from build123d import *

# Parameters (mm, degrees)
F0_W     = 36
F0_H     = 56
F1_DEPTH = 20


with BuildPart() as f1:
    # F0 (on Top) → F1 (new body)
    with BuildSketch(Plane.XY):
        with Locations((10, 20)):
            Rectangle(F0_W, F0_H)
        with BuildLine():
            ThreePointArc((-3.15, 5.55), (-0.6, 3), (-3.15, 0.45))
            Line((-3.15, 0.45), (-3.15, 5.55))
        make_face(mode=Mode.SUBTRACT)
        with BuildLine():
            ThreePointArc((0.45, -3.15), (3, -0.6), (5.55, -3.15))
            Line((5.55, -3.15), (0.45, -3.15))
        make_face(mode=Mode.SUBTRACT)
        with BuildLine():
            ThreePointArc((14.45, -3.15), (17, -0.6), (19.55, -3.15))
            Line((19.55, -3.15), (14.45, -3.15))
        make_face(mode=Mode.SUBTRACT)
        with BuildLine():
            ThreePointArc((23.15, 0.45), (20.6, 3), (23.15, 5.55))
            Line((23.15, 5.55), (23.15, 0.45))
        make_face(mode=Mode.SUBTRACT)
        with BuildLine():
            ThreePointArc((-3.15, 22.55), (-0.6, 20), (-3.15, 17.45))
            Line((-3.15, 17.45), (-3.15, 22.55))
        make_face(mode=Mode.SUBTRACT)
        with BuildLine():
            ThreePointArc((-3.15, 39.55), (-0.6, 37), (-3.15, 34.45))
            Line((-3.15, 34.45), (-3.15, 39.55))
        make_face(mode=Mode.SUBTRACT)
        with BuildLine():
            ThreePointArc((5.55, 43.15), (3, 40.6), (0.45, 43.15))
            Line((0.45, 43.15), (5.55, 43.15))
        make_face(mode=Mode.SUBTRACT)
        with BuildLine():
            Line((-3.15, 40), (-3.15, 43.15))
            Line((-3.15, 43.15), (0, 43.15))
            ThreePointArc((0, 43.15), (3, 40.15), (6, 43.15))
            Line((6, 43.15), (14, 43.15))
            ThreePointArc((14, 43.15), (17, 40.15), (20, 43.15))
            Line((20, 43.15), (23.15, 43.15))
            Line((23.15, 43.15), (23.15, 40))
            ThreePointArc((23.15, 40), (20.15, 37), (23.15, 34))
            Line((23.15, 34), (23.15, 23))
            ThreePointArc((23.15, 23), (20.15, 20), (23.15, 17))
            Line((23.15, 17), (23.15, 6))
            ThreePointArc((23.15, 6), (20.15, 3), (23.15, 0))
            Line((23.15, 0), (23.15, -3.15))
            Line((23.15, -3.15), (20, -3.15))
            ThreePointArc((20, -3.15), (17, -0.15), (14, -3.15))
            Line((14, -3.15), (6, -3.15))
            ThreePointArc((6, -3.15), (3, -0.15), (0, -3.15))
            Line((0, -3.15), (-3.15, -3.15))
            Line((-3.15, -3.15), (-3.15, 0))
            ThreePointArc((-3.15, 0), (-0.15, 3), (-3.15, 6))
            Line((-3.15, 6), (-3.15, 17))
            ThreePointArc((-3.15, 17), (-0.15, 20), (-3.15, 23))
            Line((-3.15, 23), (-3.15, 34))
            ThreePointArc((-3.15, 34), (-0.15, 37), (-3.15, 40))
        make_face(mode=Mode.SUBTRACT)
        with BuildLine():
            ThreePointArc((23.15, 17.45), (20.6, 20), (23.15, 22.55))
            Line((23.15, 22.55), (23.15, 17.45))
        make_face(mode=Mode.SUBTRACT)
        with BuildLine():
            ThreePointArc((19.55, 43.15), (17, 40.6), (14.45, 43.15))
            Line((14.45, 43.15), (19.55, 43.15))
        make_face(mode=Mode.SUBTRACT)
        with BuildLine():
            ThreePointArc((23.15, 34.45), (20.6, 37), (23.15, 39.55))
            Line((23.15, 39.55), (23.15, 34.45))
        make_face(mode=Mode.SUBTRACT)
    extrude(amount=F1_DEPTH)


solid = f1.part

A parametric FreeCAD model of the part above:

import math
import FreeCAD as App
import Part
import Sketcher

V = App.Vector


def add_polygon(sketch, points):
    """Adds a closed chain of lines whose ends are joined by coincident constraints."""
    first, n = sketch.GeometryCount, len(points)
    for a, b in zip(points, points[1:] + points[:1]):
        sketch.addGeometry(Part.LineSegment(App.Vector(*a, 0), App.Vector(*b, 0)), False)
    for i in range(n):
        sketch.addConstraint(Sketcher.Constraint("Coincident", first + i, 2, first + (i + 1) % n, 1))

doc = App.newDocument("Part")
body = doc.addObject("PartDesign::Body", "Body")

# Sketch on XY plane
sketch1 = body.newObject("Sketcher::SketchObject", "Sketch")
sketch1.AttachmentSupport = (doc.getObject("XY_Plane"), [""])
sketch1.MapMode = "FlatFace"
add_polygon(sketch1, [(-8, 48), (-8, -8), (28, -8), (28, 48)])  # lines 0-3
sketch1.addGeometry(Part.LineSegment(V(5.5, -3.1, 0), V(0.5, -3.1, 0)), False)  # 4
sketch1.addGeometry(Part.ArcOfCircle(Part.Circle(V(3, -3.1, 0), V(0, 0, 1), 2.5), math.radians(0), math.radians(180)), False)  # 5
sketch1.addGeometry(Part.LineSegment(V(-3.1, 0.5, 0), V(-3.1, 5.5, 0)), False)  # 6
sketch1.addGeometry(Part.ArcOfCircle(Part.Circle(V(-3.1, 3, 0), V(0, 0, 1), 2.5), math.radians(-90), math.radians(90)), False)  # 7
sketch1.addGeometry(Part.LineSegment(V(19.6, -3.1, 0), V(14.4, -3.1, 0)), False)  # 8
sketch1.addGeometry(Part.ArcOfCircle(Part.Circle(V(17, -3.1, 0), V(0, 0, 1), 2.5), math.radians(0), math.radians(180)), False)  # 9
sketch1.addGeometry(Part.LineSegment(V(23.1, 5.5, 0), V(23.1, 0.5, 0)), False)  # 10
sketch1.addGeometry(Part.ArcOfCircle(Part.Circle(V(23.1, 3, 0), V(0, 0, 1), 2.5), math.radians(90), math.radians(270)), False)  # 11
sketch1.addGeometry(Part.LineSegment(V(-3.1, 17.4, 0), V(-3.1, 22.6, 0)), False)  # 12
sketch1.addGeometry(Part.ArcOfCircle(Part.Circle(V(-3.1, 20, 0), V(0, 0, 1), 2.5), math.radians(-90), math.radians(90)), False)  # 13
sketch1.addGeometry(Part.LineSegment(V(-3.1, 34.5, 0), V(-3.1, 39.5, 0)), False)  # 14
sketch1.addGeometry(Part.ArcOfCircle(Part.Circle(V(-3.1, 37, 0), V(0, 0, 1), 2.5), math.radians(-90), math.radians(90)), False)  # 15
sketch1.addGeometry(Part.LineSegment(V(0.5, 43.1, 0), V(5.5, 43.1, 0)), False)  # 16
sketch1.addGeometry(Part.ArcOfCircle(Part.Circle(V(3, 43.1, 0), V(0, 0, 1), 2.5), math.radians(180), math.radians(360)), False)  # 17
sketch1.addGeometry(Part.ArcOfCircle(Part.Circle(V(-3.1, 37, 0), V(0, 0, 1), 3), math.radians(-90), math.radians(90)), False)  # 18
sketch1.addGeometry(Part.LineSegment(V(-3.1, 40, 0), V(-3.1, 43.1, 0)), False)  # 19
sketch1.addGeometry(Part.LineSegment(V(-3.1, 43.1, 0), V(0, 43.1, 0)), False)  # 20
sketch1.addGeometry(Part.ArcOfCircle(Part.Circle(V(3, 43.1, 0), V(0, 0, 1), 3), math.radians(180), math.radians(360)), False)  # 21
sketch1.addGeometry(Part.LineSegment(V(6, 43.1, 0), V(14, 43.1, 0)), False)  # 22
sketch1.addGeometry(Part.ArcOfCircle(Part.Circle(V(17, 43.1, 0), V(0, 0, 1), 3), math.radians(180), math.radians(360)), False)  # 23
sketch1.addGeometry(Part.LineSegment(V(20, 43.1, 0), V(23.1, 43.1, 0)), False)  # 24
sketch1.addGeometry(Part.LineSegment(V(23.1, 43.1, 0), V(23.1, 40, 0)), False)  # 25
sketch1.addGeometry(Part.ArcOfCircle(Part.Circle(V(23.1, 37, 0), V(0, 0, 1), 3), math.radians(90), math.radians(270)), False)  # 26
sketch1.addGeometry(Part.LineSegment(V(23.1, 34, 0), V(23.1, 23, 0)), False)  # 27
sketch1.addGeometry(Part.ArcOfCircle(Part.Circle(V(23.1, 20, 0), V(0, 0, 1), 3), math.radians(90), math.radians(270)), False)  # 28
sketch1.addGeometry(Part.LineSegment(V(23.1, 17, 0), V(23.1, 6, 0)), False)  # 29
sketch1.addGeometry(Part.ArcOfCircle(Part.Circle(V(23.1, 3, 0), V(0, 0, 1), 3), math.radians(90), math.radians(270)), False)  # 30
sketch1.addGeometry(Part.LineSegment(V(23.1, 0, 0), V(23.1, -3.1, 0)), False)  # 31
sketch1.addGeometry(Part.LineSegment(V(23.1, -3.1, 0), V(20, -3.1, 0)), False)  # 32
sketch1.addGeometry(Part.ArcOfCircle(Part.Circle(V(17, -3.1, 0), V(0, 0, 1), 3), math.radians(0), math.radians(180)), False)  # 33
sketch1.addGeometry(Part.LineSegment(V(14, -3.1, 0), V(6, -3.1, 0)), False)  # 34
sketch1.addGeometry(Part.ArcOfCircle(Part.Circle(V(3, -3.1, 0), V(0, 0, 1), 3), math.radians(0), math.radians(180)), False)  # 35
sketch1.addGeometry(Part.LineSegment(V(0, -3.1, 0), V(-3.1, -3.1, 0)), False)  # 36
sketch1.addGeometry(Part.LineSegment(V(-3.1, -3.1, 0), V(-3.1, 0, 0)), False)  # 37
sketch1.addGeometry(Part.ArcOfCircle(Part.Circle(V(-3.1, 3, 0), V(0, 0, 1), 3), math.radians(-90), math.radians(90)), False)  # 38
sketch1.addGeometry(Part.LineSegment(V(-3.1, 6, 0), V(-3.1, 17, 0)), False)  # 39
sketch1.addGeometry(Part.ArcOfCircle(Part.Circle(V(-3.1, 20, 0), V(0, 0, 1), 3), math.radians(-90), math.radians(90)), False)  # 40
sketch1.addGeometry(Part.LineSegment(V(-3.1, 23, 0), V(-3.1, 34, 0)), False)  # 41
sketch1.addGeometry(Part.LineSegment(V(23.1, 22.6, 0), V(23.1, 17.4, 0)), False)  # 42
sketch1.addGeometry(Part.ArcOfCircle(Part.Circle(V(23.1, 20, 0), V(0, 0, 1), 2.5), math.radians(90), math.radians(270)), False)  # 43
sketch1.addGeometry(Part.LineSegment(V(23.1, 39.5, 0), V(23.1, 34.5, 0)), False)  # 44
sketch1.addGeometry(Part.ArcOfCircle(Part.Circle(V(23.1, 37, 0), V(0, 0, 1), 2.5), math.radians(90), math.radians(270)), False)  # 45
sketch1.addGeometry(Part.LineSegment(V(14.4, 43.1, 0), V(19.6, 43.1, 0)), False)  # 46
sketch1.addGeometry(Part.ArcOfCircle(Part.Circle(V(17, 43.1, 0), V(0, 0, 1), 2.5), math.radians(180), math.radians(360)), False)  # 47
sketch1.addConstraint(Sketcher.Constraint("Coincident", 4, 1, 5, 1))
sketch1.addConstraint(Sketcher.Constraint("Coincident", 5, 2, 4, 2))
sketch1.addConstraint(Sketcher.Constraint("Coincident", 6, 1, 7, 1))
sketch1.addConstraint(Sketcher.Constraint("Coincident", 7, 2, 6, 2))
sketch1.addConstraint(Sketcher.Constraint("Coincident", 8, 1, 9, 1))
sketch1.addConstraint(Sketcher.Constraint("Coincident", 9, 2, 8, 2))
sketch1.addConstraint(Sketcher.Constraint("Coincident", 10, 1, 11, 1))
sketch1.addConstraint(Sketcher.Constraint("Coincident", 11, 2, 10, 2))
sketch1.addConstraint(Sketcher.Constraint("Coincident", 12, 1, 13, 1))
sketch1.addConstraint(Sketcher.Constraint("Coincident", 13, 2, 12, 2))
sketch1.addConstraint(Sketcher.Constraint("Coincident", 14, 1, 15, 1))
sketch1.addConstraint(Sketcher.Constraint("Coincident", 15, 2, 14, 2))
sketch1.addConstraint(Sketcher.Constraint("Coincident", 16, 1, 17, 1))
sketch1.addConstraint(Sketcher.Constraint("Coincident", 17, 2, 16, 2))
sketch1.addConstraint(Sketcher.Constraint("Coincident", 18, 2, 19, 1))
sketch1.addConstraint(Sketcher.Constraint("Coincident", 19, 2, 20, 1))
sketch1.addConstraint(Sketcher.Constraint("Coincident", 20, 2, 21, 1))
sketch1.addConstraint(Sketcher.Constraint("Coincident", 21, 2, 22, 1))
sketch1.addConstraint(Sketcher.Constraint("Coincident", 22, 2, 23, 1))
sketch1.addConstraint(Sketcher.Constraint("Coincident", 23, 2, 24, 1))
sketch1.addConstraint(Sketcher.Constraint("Coincident", 24, 2, 25, 1))
sketch1.addConstraint(Sketcher.Constraint("Coincident", 25, 2, 26, 1))
sketch1.addConstraint(Sketcher.Constraint("Coincident", 26, 2, 27, 1))
sketch1.addConstraint(Sketcher.Constraint("Coincident", 27, 2, 28, 1))
sketch1.addConstraint(Sketcher.Constraint("Coincident", 28, 2, 29, 1))
sketch1.addConstraint(Sketcher.Constraint("Coincident", 29, 2, 30, 1))
sketch1.addConstraint(Sketcher.Constraint("Coincident", 30, 2, 31, 1))
sketch1.addConstraint(Sketcher.Constraint("Coincident", 31, 2, 32, 1))
sketch1.addConstraint(Sketcher.Constraint("Coincident", 32, 2, 33, 1))
sketch1.addConstraint(Sketcher.Constraint("Coincident", 33, 2, 34, 1))
sketch1.addConstraint(Sketcher.Constraint("Coincident", 34, 2, 35, 1))
sketch1.addConstraint(Sketcher.Constraint("Coincident", 35, 2, 36, 1))
sketch1.addConstraint(Sketcher.Constraint("Coincident", 36, 2, 37, 1))
sketch1.addConstraint(Sketcher.Constraint("Coincident", 37, 2, 38, 1))
sketch1.addConstraint(Sketcher.Constraint("Coincident", 38, 2, 39, 1))
sketch1.addConstraint(Sketcher.Constraint("Coincident", 39, 2, 40, 1))
sketch1.addConstraint(Sketcher.Constraint("Coincident", 40, 2, 41, 1))
sketch1.addConstraint(Sketcher.Constraint("Coincident", 41, 2, 18, 1))
sketch1.addConstraint(Sketcher.Constraint("Coincident", 42, 1, 43, 1))
sketch1.addConstraint(Sketcher.Constraint("Coincident", 43, 2, 42, 2))
sketch1.addConstraint(Sketcher.Constraint("Coincident", 44, 1, 45, 1))
sketch1.addConstraint(Sketcher.Constraint("Coincident", 45, 2, 44, 2))
sketch1.addConstraint(Sketcher.Constraint("Coincident", 46, 1, 47, 1))
sketch1.addConstraint(Sketcher.Constraint("Coincident", 47, 2, 46, 2))
sketch1.addConstraint(Sketcher.Constraint("Vertical", 0))
sketch1.addConstraint(Sketcher.Constraint("Horizontal", 1))
sketch1.addConstraint(Sketcher.Constraint("Vertical", 2))
sketch1.addConstraint(Sketcher.Constraint("Horizontal", 3))
sketch1.addConstraint(Sketcher.Constraint("Horizontal", 4))
sketch1.addConstraint(Sketcher.Constraint("Vertical", 6))
sketch1.addConstraint(Sketcher.Constraint("Horizontal", 8))
sketch1.addConstraint(Sketcher.Constraint("Vertical", 10))
sketch1.addConstraint(Sketcher.Constraint("Vertical", 12))
sketch1.addConstraint(Sketcher.Constraint("Vertical", 14))
sketch1.addConstraint(Sketcher.Constraint("Horizontal", 16))
sketch1.addConstraint(Sketcher.Constraint("Vertical", 19))
sketch1.addConstraint(Sketcher.Constraint("Horizontal", 20))
sketch1.addConstraint(Sketcher.Constraint("Horizontal", 22))
sketch1.addConstraint(Sketcher.Constraint("Horizontal", 24))
sketch1.addConstraint(Sketcher.Constraint("Vertical", 25))
sketch1.addConstraint(Sketcher.Constraint("Vertical", 27))
sketch1.addConstraint(Sketcher.Constraint("Vertical", 29))
sketch1.addConstraint(Sketcher.Constraint("Vertical", 31))
sketch1.addConstraint(Sketcher.Constraint("Horizontal", 32))
sketch1.addConstraint(Sketcher.Constraint("Horizontal", 34))
sketch1.addConstraint(Sketcher.Constraint("Horizontal", 36))
sketch1.addConstraint(Sketcher.Constraint("Vertical", 37))
sketch1.addConstraint(Sketcher.Constraint("Vertical", 39))
sketch1.addConstraint(Sketcher.Constraint("Vertical", 41))
sketch1.addConstraint(Sketcher.Constraint("Vertical", 42))
sketch1.addConstraint(Sketcher.Constraint("Vertical", 44))
sketch1.addConstraint(Sketcher.Constraint("Horizontal", 46))
sketch1.addConstraint(Sketcher.Constraint("Coincident", 18, 3, 15, 3))
sketch1.addConstraint(Sketcher.Constraint("Coincident", 21, 3, 17, 3))
sketch1.addConstraint(Sketcher.Constraint("Coincident", 30, 3, 11, 3))
sketch1.addConstraint(Sketcher.Constraint("Coincident", 33, 3, 9, 3))
sketch1.addConstraint(Sketcher.Constraint("Coincident", 35, 3, 5, 3))
sketch1.addConstraint(Sketcher.Constraint("Coincident", 38, 3, 7, 3))
sketch1.addConstraint(Sketcher.Constraint("Coincident", 40, 3, 13, 3))
sketch1.addConstraint(Sketcher.Constraint("Coincident", 43, 3, 28, 3))
sketch1.addConstraint(Sketcher.Constraint("Coincident", 45, 3, 26, 3))
sketch1.addConstraint(Sketcher.Constraint("Coincident", 47, 3, 23, 3))
sketch1.addConstraint(Sketcher.Constraint("Equal", 5, 7))
sketch1.addConstraint(Sketcher.Constraint("Equal", 7, 9))
sketch1.addConstraint(Sketcher.Constraint("Equal", 9, 11))
sketch1.addConstraint(Sketcher.Constraint("Equal", 11, 13))
sketch1.addConstraint(Sketcher.Constraint("Equal", 13, 15))
sketch1.addConstraint(Sketcher.Constraint("Equal", 15, 17))
sketch1.addConstraint(Sketcher.Constraint("Equal", 18, 21))
sketch1.addConstraint(Sketcher.Constraint("Equal", 21, 23))
sketch1.addConstraint(Sketcher.Constraint("Equal", 23, 26))
sketch1.addConstraint(Sketcher.Constraint("Equal", 26, 28))
sketch1.addConstraint(Sketcher.Constraint("Equal", 28, 30))
sketch1.addConstraint(Sketcher.Constraint("Equal", 30, 33))
sketch1.addConstraint(Sketcher.Constraint("Equal", 33, 35))
sketch1.addConstraint(Sketcher.Constraint("Equal", 35, 38))
sketch1.addConstraint(Sketcher.Constraint("Equal", 38, 40))
sketch1.addConstraint(Sketcher.Constraint("Equal", 17, 43))
sketch1.addConstraint(Sketcher.Constraint("Equal", 43, 45))
sketch1.addConstraint(Sketcher.Constraint("Equal", 45, 47))
sketch1.addConstraint(Sketcher.Constraint("PointOnObject", 20, 2, -2))
sketch1.addConstraint(Sketcher.Constraint("PointOnObject", 30, 2, -1))
sketch1.addConstraint(Sketcher.Constraint("PointOnObject", 35, 2, -2))
sketch1.addConstraint(Sketcher.Constraint("PointOnObject", 37, 2, -1))
sketch1.addConstraint(Sketcher.Constraint("Horizontal", 5, 3, 9, 3))
sketch1.addConstraint(Sketcher.Constraint("Horizontal", 21, 3, 23, 3))
sketch1.addConstraint(Sketcher.Constraint("Horizontal", 18, 3, 26, 3))
sketch1.addConstraint(Sketcher.Constraint("Horizontal", 13, 3, 28, 3))
sketch1.addConstraint(Sketcher.Constraint("Horizontal", 35, 3, 4, 1))
sketch1.addConstraint(Sketcher.Constraint("Horizontal", 5, 2, 8, 1))
sketch1.addConstraint(Sketcher.Constraint("Horizontal", 47, 3, 16, 1))
sketch1.addConstraint(Sketcher.Constraint("Horizontal", 17, 2, 19, 2))
sketch1.addConstraint(Sketcher.Constraint("Horizontal", 20, 2, 21, 2))
sketch1.addConstraint(Sketcher.Constraint("Horizontal", 22, 2, 23, 2))
sketch1.addConstraint(Sketcher.Constraint("Horizontal", 9, 2, 31, 2))
sketch1.addConstraint(Sketcher.Constraint("Horizontal", 32, 2, 33, 2))
sketch1.addConstraint(Sketcher.Constraint("Horizontal", 34, 2, 35, 2))
sketch1.addConstraint(Sketcher.Constraint("Horizontal", 24, 2, 46, 1))
sketch1.addConstraint(Sketcher.Constraint("Vertical", 7, 3, 13, 3))
sketch1.addConstraint(Sketcher.Constraint("Vertical", 13, 3, 15, 3))
sketch1.addConstraint(Sketcher.Constraint("Vertical", 9, 3, 23, 3))
sketch1.addConstraint(Sketcher.Constraint("Vertical", 11, 3, 26, 3))
sketch1.addConstraint(Sketcher.Constraint("Vertical", 26, 3, 28, 3))
sketch1.addConstraint(Sketcher.Constraint("Vertical", 40, 3, 6, 1))
sketch1.addConstraint(Sketcher.Constraint("Vertical", 45, 3, 10, 1))
sketch1.addConstraint(Sketcher.Constraint("Vertical", 7, 2, 12, 1))
sketch1.addConstraint(Sketcher.Constraint("Vertical", 13, 2, 14, 1))
sketch1.addConstraint(Sketcher.Constraint("Vertical", 15, 2, 18, 2))
sketch1.addConstraint(Sketcher.Constraint("Vertical", 11, 2, 24, 2))
sketch1.addConstraint(Sketcher.Constraint("Vertical", 25, 2, 26, 2))
sketch1.addConstraint(Sketcher.Constraint("Vertical", 27, 2, 28, 2))
sketch1.addConstraint(Sketcher.Constraint("Vertical", 29, 2, 30, 2))
sketch1.addConstraint(Sketcher.Constraint("Vertical", 19, 2, 36, 2))
sketch1.addConstraint(Sketcher.Constraint("Vertical", 37, 2, 38, 2))
sketch1.addConstraint(Sketcher.Constraint("Vertical", 39, 2, 40, 2))
sketch1.addConstraint(Sketcher.Constraint("Vertical", 31, 2, 42, 1))
sketch1.addConstraint(Sketcher.Constraint("Vertical", 43, 2, 44, 1))
sketch1.addConstraint(Sketcher.Constraint("Equal", 20, 24))
sketch1.addConstraint(Sketcher.Constraint("Equal", 36, 19))
sketch1.addConstraint(Sketcher.Constraint("Equal", 27, 29))
sketch1.addConstraint(Sketcher.Constraint("Equal", 25, 31))
sketch1.addConstraint(Sketcher.Constraint("Radius", 18, 3.0))
sketch1.addConstraint(Sketcher.Constraint("DistanceX", 1, 1, 1, 2, 36.0))
sketch1.addConstraint(Sketcher.Constraint("DistanceX", 22, 1, 22, 2, 8.0))
sketch1.addConstraint(Sketcher.Constraint("DistanceY", 0, 2, 0, 1, 56.0))
sketch1.addConstraint(Sketcher.Constraint("DistanceY", 27, 2, 27, 1, 11.0))
sketch1.addConstraint(Sketcher.Constraint("Radius", 5, 2.55))
sketch1.addConstraint(Sketcher.Constraint("DistanceX", 0, 2, -1, 1, 8.0))
sketch1.addConstraint(Sketcher.Constraint("DistanceY", 0, 2, -1, 1, 8.0))
sketch1.addConstraint(Sketcher.Constraint("DistanceX", 20, 1, 20, 2, 3.15))
pad1 = body.newObject("PartDesign::Pad", "Pad")
pad1.Profile = sketch1
pad1.Length = 20

doc.recompute()
